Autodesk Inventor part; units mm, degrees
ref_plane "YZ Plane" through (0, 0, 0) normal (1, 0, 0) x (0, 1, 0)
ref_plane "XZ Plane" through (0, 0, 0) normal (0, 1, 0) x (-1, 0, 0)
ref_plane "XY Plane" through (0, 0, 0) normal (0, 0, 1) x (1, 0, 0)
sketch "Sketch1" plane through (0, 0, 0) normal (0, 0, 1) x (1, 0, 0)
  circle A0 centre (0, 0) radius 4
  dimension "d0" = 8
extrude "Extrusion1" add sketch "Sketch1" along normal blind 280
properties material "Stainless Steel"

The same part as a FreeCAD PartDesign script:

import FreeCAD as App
import Part
import Sketcher

doc = App.newDocument("Part")
body = doc.addObject("PartDesign::Body", "Body")

sketch1 = body.newObject("Sketcher::SketchObject", "Sketch")
sketch1.AttachmentSupport = (doc.getObject("XY_Plane"), [""])
sketch1.MapMode = "FlatFace"
sketch1.addGeometry(Part.Circle(App.Vector(0, 0, 0), App.Vector(0, 0, 1), 4), False)
sketch1.addConstraint([
    Sketcher.Constraint("Coincident", 0, 3, -1, 1),
    Sketcher.Constraint("Diameter", 0, 8.0),
])
pad1 = body.newObject("PartDesign::Pad", "Pad")
pad1.Profile = sketch1
pad1.Length = 280

doc.recompute()
